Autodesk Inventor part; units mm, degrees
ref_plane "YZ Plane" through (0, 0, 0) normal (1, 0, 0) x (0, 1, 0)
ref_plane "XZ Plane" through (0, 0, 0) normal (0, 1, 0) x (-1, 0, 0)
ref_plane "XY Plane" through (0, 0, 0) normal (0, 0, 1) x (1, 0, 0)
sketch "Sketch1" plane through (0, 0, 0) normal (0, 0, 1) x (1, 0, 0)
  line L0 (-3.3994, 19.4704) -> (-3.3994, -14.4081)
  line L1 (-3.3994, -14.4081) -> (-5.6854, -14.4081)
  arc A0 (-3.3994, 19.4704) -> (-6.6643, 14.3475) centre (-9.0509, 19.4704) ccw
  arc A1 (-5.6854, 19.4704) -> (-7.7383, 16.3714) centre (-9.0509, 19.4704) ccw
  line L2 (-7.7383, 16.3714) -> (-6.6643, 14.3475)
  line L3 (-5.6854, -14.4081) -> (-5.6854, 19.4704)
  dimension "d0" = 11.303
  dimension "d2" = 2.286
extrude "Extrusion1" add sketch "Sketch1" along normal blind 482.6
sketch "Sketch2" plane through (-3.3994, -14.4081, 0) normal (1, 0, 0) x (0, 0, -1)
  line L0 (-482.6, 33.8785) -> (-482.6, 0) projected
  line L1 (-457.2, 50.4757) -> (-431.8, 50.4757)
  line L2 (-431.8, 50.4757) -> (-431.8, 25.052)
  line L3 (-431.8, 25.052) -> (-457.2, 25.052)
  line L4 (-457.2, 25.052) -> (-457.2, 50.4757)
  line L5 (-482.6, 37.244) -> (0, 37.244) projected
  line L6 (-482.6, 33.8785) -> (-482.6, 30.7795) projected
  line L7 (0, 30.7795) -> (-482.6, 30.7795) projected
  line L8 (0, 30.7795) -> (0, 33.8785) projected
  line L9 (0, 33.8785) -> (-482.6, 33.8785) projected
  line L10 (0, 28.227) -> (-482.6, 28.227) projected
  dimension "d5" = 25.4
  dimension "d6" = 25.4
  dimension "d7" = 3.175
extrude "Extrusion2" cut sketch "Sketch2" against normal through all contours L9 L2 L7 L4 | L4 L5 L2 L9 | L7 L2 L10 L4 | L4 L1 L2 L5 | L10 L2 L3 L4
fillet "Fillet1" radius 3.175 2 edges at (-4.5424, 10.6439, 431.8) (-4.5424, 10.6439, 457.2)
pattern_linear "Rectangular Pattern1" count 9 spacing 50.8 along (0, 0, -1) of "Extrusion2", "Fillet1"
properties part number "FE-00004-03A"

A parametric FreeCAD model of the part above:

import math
import FreeCAD as App
import Part
import Sketcher

V = App.Vector
Q = App.Units.Quantity


def edges_at(feature, points):
    """Names of the edges that pass closest to the given points."""
    edges = feature.Shape.Edges
    near = lambda p: min(range(len(edges)), key=lambda i: edges[i].distToShape(Part.Vertex(*p))[0])
    return sorted({f"Edge{near(p) + 1}" for p in points})

doc = App.newDocument("Part")
body = doc.addObject("PartDesign::Body", "Body")

sketch1 = body.newObject("Sketcher::SketchObject", "Sketch")
sketch1.AttachmentSupport = (doc.getObject("XY_Plane"), [""])
sketch1.MapMode = "FlatFace"
sketch1.addGeometry([
    Part.LineSegment(V(-3.4, -14.4, 0), V(-3.4, 19.5, 0)),
    Part.ArcOfCircle(Part.Circle(V(-9.1, 19.5, 0), V(0, 0, 1), 5.7), math.radians(0), math.radians(295)),
    Part.LineSegment(V(-6.7, 14.3, 0), V(-7.7, 16.4, 0)),
    Part.ArcOfCircle(Part.Circle(V(-9.1, 19.5, 0), V(0, 0, 1), 3.4), math.radians(0), math.radians(293)),
    Part.LineSegment(V(-5.7, 19.5, 0), V(-5.7, -14.4, 0)),
    Part.LineSegment(V(-5.7, -14.4, 0), V(-3.4, -14.4, 0)),
], False)
sketch1.addConstraint([
    Sketcher.Constraint("Tangent", 0, 2, 1, 1),
    Sketcher.Constraint("Coincident", 1, 2, 2, 1),
    Sketcher.Constraint("Coincident", 2, 2, 3, 2),
    Sketcher.Constraint("Tangent", 3, 1, 4, 1),
    Sketcher.Constraint("Coincident", 4, 2, 5, 1),
    Sketcher.Constraint("Coincident", 5, 2, 0, 1),
    Sketcher.Constraint("Vertical", 0),
    Sketcher.Constraint("Vertical", 4),
    Sketcher.Constraint("Horizontal", 5),
    Sketcher.Constraint("Coincident", 3, 3, 1, 3),
    Sketcher.Constraint("DistanceX", 5, 1, 5, 2, Q("0.09 in")),
    Sketcher.Constraint("Radius", 1, Q("0.2225 in")),
    Sketcher.Constraint("DistanceY", 0, 1, 0, 2, Q("1.3338 in")),
    Sketcher.Constraint("DistanceY", 2, 2, 1, 3, Q("0.122 in")),
    Sketcher.Constraint("Distance", 2, Q("0.0902 in")),
    Sketcher.Constraint("DistanceX", 1, 3, -1, 1, 9.051),
    Sketcher.Constraint("DistanceY", -1, 1, 1, 3, 19.4704),
])
pad1 = body.newObject("PartDesign::Pad", "Pad")
pad1.Profile = sketch1
pad1.Length = Q("19 in")

sketch2 = body.newObject("Sketcher::SketchObject", "Sketch001")
sketch2.AttachmentSupport = (doc.getObject("YZ_Plane"), [""])
sketch2.MapMode = "FlatFace"
sketch2.AttachmentOffset = App.Placement(V(0, 0, -3.3994), App.Rotation())
sketch2.addGeometry([
    Part.LineSegment(V(36, 432, 0), V(36, 457, 0)),
    Part.LineSegment(V(36, 457, 0), V(11, 457, 0)),
    Part.LineSegment(V(11, 457, 0), V(11, 432, 0)),
    Part.LineSegment(V(11, 432, 0), V(36, 432, 0)),
], False)
sketch2.addConstraint([
    Sketcher.Constraint("Coincident", 0, 2, 1, 1),
    Sketcher.Constraint("Coincident", 1, 2, 2, 1),
    Sketcher.Constraint("Coincident", 2, 2, 3, 1),
    Sketcher.Constraint("Coincident", 3, 2, 0, 1),
    Sketcher.Constraint("Vertical", 0),
    Sketcher.Constraint("Horizontal", 1),
    Sketcher.Constraint("Vertical", 2),
    Sketcher.Constraint("Horizontal", 3),
    Sketcher.Constraint("DistanceY", 0, 1, 0, 2, Q("1 in")),
    Sketcher.Constraint("DistanceY", -1, 1, 0, 2, Q("18 in")),
    Sketcher.Constraint("DistanceX", 1, 2, 1, 1, 25.4237),
    Sketcher.Constraint("DistanceX", -1, 1, 0, 2, 36.0676),
])
pocket1 = body.newObject("PartDesign::Pocket", "Pocket")
pocket1.Profile = sketch2
pocket1.Type = "ThroughAll"
doc.recompute()

fillet = body.newObject("PartDesign::Fillet", "Fillet")
fillet.Base = (pocket1, edges_at(pocket1, [(-4.542, 10.644, 431.8), (-4.542, 10.644, 457.2)]))
fillet.Radius = Q("0.125 in")
doc.recompute()

linearpattern = body.newObject("PartDesign::LinearPattern", "LinearPattern")
linearpattern.Originals = [pocket1, fillet]
linearpattern.Direction = (doc.getObject("Z_Axis"), [""])
linearpattern.Mode = "offset"
linearpattern.Offset = Q("2 in")
linearpattern.Occurrences = 9
linearpattern.Reversed = True
body.Tip = linearpattern

doc.recompute()
